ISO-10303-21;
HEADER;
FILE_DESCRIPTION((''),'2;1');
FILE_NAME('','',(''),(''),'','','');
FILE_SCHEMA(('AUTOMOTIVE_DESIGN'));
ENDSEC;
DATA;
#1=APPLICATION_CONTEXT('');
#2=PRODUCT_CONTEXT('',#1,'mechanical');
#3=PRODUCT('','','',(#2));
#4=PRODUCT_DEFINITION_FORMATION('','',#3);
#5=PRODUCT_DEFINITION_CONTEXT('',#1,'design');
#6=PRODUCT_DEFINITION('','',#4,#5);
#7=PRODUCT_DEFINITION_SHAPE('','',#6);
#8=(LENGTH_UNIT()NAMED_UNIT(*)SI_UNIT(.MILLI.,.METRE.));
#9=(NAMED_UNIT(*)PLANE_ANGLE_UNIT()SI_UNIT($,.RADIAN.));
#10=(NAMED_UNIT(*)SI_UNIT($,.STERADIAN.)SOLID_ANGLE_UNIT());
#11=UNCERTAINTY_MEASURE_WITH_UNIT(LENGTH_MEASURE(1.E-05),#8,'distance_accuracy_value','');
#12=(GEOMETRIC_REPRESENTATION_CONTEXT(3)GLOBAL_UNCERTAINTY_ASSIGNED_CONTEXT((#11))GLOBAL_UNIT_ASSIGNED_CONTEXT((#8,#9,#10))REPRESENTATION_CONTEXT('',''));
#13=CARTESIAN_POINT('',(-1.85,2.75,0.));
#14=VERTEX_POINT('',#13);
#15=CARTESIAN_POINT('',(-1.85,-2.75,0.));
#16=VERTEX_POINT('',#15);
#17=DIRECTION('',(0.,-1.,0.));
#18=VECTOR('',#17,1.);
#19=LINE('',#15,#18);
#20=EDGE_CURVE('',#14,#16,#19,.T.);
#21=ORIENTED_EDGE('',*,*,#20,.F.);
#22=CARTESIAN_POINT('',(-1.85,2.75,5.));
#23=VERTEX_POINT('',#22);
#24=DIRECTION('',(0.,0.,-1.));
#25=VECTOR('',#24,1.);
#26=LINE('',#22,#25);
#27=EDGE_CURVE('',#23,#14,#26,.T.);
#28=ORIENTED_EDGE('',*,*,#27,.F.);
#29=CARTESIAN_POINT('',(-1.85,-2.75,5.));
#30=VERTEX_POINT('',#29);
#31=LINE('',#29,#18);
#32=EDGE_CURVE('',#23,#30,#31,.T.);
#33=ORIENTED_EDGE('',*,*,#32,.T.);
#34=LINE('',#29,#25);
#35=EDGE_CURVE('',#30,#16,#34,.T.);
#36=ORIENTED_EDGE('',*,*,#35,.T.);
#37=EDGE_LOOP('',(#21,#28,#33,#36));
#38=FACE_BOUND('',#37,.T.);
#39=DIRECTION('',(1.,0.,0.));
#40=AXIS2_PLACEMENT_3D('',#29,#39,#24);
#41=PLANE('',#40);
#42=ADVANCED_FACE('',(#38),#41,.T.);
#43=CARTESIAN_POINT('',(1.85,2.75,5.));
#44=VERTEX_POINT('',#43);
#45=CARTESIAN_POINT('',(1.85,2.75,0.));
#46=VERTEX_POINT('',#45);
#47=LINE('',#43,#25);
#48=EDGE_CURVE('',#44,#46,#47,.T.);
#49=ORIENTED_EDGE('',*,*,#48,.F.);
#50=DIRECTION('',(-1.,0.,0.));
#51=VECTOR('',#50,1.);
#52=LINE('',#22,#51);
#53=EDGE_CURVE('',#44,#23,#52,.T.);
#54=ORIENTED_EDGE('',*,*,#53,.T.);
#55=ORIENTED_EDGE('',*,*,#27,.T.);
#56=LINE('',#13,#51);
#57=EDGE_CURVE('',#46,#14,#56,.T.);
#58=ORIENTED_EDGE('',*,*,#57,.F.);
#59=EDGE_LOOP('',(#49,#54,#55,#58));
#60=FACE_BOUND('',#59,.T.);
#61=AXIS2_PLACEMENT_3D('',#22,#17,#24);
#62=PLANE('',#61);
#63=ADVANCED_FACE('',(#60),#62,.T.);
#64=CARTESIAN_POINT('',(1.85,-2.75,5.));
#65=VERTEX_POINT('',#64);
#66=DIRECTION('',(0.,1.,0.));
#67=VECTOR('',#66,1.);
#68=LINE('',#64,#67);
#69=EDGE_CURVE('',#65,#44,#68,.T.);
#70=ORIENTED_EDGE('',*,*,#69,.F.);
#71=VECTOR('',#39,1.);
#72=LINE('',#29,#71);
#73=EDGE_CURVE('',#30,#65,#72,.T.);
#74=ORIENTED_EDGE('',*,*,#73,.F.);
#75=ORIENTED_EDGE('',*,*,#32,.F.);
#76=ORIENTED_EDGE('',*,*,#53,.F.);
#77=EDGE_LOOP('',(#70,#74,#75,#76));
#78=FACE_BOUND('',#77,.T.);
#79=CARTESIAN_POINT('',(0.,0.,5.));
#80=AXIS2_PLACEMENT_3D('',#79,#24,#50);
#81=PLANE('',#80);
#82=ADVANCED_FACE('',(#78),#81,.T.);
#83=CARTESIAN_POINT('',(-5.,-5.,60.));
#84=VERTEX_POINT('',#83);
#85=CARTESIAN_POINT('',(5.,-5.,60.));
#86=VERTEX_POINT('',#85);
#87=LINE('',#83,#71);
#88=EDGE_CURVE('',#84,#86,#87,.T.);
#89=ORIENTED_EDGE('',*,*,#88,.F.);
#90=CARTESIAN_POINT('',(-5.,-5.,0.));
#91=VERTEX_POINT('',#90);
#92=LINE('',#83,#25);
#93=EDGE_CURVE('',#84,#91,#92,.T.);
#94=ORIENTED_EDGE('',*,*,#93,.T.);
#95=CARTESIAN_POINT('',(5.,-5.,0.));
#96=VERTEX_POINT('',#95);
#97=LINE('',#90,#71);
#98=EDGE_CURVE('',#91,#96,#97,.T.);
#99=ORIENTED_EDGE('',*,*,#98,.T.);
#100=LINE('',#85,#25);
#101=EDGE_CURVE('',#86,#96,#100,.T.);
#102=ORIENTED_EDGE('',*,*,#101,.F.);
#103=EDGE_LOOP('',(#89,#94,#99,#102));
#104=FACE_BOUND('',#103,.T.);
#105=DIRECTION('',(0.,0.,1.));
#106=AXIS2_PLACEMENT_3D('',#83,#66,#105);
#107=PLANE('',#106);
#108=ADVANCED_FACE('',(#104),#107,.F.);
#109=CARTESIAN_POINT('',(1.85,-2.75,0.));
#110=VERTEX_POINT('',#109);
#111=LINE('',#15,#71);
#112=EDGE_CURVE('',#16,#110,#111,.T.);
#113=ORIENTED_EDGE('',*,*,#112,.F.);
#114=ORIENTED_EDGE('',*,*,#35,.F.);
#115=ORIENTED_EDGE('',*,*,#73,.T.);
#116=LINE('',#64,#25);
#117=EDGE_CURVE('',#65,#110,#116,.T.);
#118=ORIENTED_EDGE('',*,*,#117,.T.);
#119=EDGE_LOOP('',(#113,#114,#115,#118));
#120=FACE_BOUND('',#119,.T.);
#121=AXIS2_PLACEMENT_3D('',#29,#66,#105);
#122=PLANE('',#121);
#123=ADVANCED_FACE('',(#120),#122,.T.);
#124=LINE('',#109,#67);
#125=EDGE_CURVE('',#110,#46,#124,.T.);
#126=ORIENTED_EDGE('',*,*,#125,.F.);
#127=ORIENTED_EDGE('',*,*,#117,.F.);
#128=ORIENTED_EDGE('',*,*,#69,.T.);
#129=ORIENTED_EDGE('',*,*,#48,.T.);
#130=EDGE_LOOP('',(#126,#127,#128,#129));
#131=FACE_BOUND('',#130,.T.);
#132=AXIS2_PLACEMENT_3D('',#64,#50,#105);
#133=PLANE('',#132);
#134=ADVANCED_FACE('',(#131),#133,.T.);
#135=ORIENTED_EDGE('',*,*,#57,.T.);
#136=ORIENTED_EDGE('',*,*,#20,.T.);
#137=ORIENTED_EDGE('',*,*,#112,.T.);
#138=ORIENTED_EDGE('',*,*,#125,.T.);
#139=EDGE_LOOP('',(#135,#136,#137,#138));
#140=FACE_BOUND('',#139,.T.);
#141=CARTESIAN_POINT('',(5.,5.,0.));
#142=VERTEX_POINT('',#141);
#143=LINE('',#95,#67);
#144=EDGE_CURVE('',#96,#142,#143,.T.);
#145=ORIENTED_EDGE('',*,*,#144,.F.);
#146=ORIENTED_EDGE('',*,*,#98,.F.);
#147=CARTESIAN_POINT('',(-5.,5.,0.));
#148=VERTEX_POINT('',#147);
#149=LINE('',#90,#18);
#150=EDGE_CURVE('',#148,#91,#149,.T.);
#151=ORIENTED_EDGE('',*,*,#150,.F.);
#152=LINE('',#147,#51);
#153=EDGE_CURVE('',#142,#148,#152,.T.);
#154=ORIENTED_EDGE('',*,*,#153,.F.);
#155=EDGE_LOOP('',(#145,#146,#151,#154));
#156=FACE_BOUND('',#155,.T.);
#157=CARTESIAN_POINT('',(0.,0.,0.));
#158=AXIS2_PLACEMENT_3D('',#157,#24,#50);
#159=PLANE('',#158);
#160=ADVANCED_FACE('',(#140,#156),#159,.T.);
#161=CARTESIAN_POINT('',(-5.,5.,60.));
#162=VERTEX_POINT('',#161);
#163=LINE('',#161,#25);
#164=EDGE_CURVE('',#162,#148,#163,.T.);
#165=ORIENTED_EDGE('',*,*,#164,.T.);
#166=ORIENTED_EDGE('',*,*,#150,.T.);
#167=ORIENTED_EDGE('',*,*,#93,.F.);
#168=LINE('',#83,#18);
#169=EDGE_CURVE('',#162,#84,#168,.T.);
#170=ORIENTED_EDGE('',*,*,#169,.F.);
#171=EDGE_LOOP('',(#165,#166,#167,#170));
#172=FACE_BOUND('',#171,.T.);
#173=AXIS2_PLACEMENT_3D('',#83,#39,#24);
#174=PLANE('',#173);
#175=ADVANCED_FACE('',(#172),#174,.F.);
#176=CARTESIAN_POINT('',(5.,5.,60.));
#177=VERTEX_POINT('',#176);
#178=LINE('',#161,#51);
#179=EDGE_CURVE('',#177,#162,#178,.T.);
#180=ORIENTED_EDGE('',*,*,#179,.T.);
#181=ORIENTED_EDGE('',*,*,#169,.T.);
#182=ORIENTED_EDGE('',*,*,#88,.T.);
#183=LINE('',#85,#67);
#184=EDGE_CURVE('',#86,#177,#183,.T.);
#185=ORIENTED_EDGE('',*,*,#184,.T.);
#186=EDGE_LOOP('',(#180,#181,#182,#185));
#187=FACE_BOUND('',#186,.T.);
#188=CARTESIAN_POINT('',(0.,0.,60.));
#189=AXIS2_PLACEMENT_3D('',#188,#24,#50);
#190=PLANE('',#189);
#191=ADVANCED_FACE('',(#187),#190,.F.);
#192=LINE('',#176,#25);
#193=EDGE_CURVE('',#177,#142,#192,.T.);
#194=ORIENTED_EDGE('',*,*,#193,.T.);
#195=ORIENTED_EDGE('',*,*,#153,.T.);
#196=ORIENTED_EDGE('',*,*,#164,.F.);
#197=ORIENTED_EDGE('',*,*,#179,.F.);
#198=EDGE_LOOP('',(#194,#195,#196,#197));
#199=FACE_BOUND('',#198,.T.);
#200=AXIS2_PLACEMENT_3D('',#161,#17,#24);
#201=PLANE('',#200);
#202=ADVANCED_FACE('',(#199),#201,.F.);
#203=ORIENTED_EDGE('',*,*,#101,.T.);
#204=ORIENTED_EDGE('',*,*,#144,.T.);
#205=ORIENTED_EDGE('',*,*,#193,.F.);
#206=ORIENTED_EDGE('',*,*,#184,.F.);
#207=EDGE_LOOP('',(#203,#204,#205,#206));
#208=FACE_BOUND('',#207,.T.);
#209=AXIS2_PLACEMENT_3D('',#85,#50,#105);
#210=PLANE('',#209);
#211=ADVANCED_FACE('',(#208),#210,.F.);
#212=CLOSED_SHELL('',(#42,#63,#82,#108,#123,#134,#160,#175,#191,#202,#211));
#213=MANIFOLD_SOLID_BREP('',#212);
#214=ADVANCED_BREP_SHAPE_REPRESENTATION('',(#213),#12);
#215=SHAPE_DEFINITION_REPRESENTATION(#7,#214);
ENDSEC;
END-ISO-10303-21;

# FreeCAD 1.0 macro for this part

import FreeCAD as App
import Part
import Sketcher
from FreeCAD import Vector

doc = App.newDocument("Part")
body = doc.addObject("PartDesign::Body", "Body")

# Sketch on XY plane
sketch1 = doc.addObject("Sketcher::SketchObject", "Sketch")
body.addObject(sketch1)
sketch1.AttachmentSupport = (doc.XY_Plane, [""])
sketch1.MapMode = "FlatFace"
sketch1.addGeometry([
    Part.LineSegment(Vector(-5, 5, 0), Vector(-5, -5, 0)),
    Part.LineSegment(Vector(-5, -5, 0), Vector(5, -5, 0)),
    Part.LineSegment(Vector(5, -5, 0), Vector(5, 5, 0)),
    Part.LineSegment(Vector(5, 5, 0), Vector(-5, 5, 0)),
], False)
sketch1.addConstraint([
    Sketcher.Constraint("Coincident", 0, 2, 1, 1),
    Sketcher.Constraint("Coincident", 1, 2, 2, 1),
    Sketcher.Constraint("Coincident", 2, 2, 3, 1),
    Sketcher.Constraint("Coincident", 3, 2, 0, 1),
    Sketcher.Constraint("Vertical", 0),
    Sketcher.Constraint("Horizontal", 1),
    Sketcher.Constraint("Vertical", 2),
    Sketcher.Constraint("Horizontal", 3),
    Sketcher.Constraint("Symmetric", 0, 2, 2, 2, -1, 1),
    Sketcher.Constraint("Equal", 3, 0),
    Sketcher.Constraint("DistanceX", 1, 1, 1, 2, 10.0),
])
pad1 = doc.addObject("PartDesign::Pad", "Pad")
body.addObject(pad1)
pad1.Profile = sketch1
pad1.Length = 60

# Sketch on XY plane
sketch2 = doc.addObject("Sketcher::SketchObject", "Sketch001")
body.addObject(sketch2)
sketch2.AttachmentSupport = (doc.XY_Plane, [""])
sketch2.MapMode = "FlatFace"
sketch2.addGeometry([
    Part.LineSegment(Vector(-1.85, 2.75, 0), Vector(-1.85, -2.75, 0)),
    Part.LineSegment(Vector(-1.85, -2.75, 0), Vector(1.85, -2.75, 0)),
    Part.LineSegment(Vector(1.85, -2.75, 0), Vector(1.85, 2.75, 0)),
    Part.LineSegment(Vector(1.85, 2.75, 0), Vector(-1.85, 2.75, 0)),
], False)
sketch2.addConstraint([
    Sketcher.Constraint("Coincident", 0, 2, 1, 1),
    Sketcher.Constraint("Coincident", 1, 2, 2, 1),
    Sketcher.Constraint("Coincident", 2, 2, 3, 1),
    Sketcher.Constraint("Coincident", 3, 2, 0, 1),
    Sketcher.Constraint("Vertical", 0),
    Sketcher.Constraint("Horizontal", 1),
    Sketcher.Constraint("Vertical", 2),
    Sketcher.Constraint("Horizontal", 3),
    Sketcher.Constraint("Symmetric", 0, 2, 2, 2, -1, 1),
    Sketcher.Constraint("DistanceX", 1, 1, 1, 2, 3.7),
    Sketcher.Constraint("DistanceY", 0, 2, 0, 1, 5.5),
])
pocket1 = doc.addObject("PartDesign::Pocket", "Pocket")
body.addObject(pocket1)
pocket1.Profile = sketch2
pocket1.Length = 5
pocket1.Reversed = True

doc.recompute()
